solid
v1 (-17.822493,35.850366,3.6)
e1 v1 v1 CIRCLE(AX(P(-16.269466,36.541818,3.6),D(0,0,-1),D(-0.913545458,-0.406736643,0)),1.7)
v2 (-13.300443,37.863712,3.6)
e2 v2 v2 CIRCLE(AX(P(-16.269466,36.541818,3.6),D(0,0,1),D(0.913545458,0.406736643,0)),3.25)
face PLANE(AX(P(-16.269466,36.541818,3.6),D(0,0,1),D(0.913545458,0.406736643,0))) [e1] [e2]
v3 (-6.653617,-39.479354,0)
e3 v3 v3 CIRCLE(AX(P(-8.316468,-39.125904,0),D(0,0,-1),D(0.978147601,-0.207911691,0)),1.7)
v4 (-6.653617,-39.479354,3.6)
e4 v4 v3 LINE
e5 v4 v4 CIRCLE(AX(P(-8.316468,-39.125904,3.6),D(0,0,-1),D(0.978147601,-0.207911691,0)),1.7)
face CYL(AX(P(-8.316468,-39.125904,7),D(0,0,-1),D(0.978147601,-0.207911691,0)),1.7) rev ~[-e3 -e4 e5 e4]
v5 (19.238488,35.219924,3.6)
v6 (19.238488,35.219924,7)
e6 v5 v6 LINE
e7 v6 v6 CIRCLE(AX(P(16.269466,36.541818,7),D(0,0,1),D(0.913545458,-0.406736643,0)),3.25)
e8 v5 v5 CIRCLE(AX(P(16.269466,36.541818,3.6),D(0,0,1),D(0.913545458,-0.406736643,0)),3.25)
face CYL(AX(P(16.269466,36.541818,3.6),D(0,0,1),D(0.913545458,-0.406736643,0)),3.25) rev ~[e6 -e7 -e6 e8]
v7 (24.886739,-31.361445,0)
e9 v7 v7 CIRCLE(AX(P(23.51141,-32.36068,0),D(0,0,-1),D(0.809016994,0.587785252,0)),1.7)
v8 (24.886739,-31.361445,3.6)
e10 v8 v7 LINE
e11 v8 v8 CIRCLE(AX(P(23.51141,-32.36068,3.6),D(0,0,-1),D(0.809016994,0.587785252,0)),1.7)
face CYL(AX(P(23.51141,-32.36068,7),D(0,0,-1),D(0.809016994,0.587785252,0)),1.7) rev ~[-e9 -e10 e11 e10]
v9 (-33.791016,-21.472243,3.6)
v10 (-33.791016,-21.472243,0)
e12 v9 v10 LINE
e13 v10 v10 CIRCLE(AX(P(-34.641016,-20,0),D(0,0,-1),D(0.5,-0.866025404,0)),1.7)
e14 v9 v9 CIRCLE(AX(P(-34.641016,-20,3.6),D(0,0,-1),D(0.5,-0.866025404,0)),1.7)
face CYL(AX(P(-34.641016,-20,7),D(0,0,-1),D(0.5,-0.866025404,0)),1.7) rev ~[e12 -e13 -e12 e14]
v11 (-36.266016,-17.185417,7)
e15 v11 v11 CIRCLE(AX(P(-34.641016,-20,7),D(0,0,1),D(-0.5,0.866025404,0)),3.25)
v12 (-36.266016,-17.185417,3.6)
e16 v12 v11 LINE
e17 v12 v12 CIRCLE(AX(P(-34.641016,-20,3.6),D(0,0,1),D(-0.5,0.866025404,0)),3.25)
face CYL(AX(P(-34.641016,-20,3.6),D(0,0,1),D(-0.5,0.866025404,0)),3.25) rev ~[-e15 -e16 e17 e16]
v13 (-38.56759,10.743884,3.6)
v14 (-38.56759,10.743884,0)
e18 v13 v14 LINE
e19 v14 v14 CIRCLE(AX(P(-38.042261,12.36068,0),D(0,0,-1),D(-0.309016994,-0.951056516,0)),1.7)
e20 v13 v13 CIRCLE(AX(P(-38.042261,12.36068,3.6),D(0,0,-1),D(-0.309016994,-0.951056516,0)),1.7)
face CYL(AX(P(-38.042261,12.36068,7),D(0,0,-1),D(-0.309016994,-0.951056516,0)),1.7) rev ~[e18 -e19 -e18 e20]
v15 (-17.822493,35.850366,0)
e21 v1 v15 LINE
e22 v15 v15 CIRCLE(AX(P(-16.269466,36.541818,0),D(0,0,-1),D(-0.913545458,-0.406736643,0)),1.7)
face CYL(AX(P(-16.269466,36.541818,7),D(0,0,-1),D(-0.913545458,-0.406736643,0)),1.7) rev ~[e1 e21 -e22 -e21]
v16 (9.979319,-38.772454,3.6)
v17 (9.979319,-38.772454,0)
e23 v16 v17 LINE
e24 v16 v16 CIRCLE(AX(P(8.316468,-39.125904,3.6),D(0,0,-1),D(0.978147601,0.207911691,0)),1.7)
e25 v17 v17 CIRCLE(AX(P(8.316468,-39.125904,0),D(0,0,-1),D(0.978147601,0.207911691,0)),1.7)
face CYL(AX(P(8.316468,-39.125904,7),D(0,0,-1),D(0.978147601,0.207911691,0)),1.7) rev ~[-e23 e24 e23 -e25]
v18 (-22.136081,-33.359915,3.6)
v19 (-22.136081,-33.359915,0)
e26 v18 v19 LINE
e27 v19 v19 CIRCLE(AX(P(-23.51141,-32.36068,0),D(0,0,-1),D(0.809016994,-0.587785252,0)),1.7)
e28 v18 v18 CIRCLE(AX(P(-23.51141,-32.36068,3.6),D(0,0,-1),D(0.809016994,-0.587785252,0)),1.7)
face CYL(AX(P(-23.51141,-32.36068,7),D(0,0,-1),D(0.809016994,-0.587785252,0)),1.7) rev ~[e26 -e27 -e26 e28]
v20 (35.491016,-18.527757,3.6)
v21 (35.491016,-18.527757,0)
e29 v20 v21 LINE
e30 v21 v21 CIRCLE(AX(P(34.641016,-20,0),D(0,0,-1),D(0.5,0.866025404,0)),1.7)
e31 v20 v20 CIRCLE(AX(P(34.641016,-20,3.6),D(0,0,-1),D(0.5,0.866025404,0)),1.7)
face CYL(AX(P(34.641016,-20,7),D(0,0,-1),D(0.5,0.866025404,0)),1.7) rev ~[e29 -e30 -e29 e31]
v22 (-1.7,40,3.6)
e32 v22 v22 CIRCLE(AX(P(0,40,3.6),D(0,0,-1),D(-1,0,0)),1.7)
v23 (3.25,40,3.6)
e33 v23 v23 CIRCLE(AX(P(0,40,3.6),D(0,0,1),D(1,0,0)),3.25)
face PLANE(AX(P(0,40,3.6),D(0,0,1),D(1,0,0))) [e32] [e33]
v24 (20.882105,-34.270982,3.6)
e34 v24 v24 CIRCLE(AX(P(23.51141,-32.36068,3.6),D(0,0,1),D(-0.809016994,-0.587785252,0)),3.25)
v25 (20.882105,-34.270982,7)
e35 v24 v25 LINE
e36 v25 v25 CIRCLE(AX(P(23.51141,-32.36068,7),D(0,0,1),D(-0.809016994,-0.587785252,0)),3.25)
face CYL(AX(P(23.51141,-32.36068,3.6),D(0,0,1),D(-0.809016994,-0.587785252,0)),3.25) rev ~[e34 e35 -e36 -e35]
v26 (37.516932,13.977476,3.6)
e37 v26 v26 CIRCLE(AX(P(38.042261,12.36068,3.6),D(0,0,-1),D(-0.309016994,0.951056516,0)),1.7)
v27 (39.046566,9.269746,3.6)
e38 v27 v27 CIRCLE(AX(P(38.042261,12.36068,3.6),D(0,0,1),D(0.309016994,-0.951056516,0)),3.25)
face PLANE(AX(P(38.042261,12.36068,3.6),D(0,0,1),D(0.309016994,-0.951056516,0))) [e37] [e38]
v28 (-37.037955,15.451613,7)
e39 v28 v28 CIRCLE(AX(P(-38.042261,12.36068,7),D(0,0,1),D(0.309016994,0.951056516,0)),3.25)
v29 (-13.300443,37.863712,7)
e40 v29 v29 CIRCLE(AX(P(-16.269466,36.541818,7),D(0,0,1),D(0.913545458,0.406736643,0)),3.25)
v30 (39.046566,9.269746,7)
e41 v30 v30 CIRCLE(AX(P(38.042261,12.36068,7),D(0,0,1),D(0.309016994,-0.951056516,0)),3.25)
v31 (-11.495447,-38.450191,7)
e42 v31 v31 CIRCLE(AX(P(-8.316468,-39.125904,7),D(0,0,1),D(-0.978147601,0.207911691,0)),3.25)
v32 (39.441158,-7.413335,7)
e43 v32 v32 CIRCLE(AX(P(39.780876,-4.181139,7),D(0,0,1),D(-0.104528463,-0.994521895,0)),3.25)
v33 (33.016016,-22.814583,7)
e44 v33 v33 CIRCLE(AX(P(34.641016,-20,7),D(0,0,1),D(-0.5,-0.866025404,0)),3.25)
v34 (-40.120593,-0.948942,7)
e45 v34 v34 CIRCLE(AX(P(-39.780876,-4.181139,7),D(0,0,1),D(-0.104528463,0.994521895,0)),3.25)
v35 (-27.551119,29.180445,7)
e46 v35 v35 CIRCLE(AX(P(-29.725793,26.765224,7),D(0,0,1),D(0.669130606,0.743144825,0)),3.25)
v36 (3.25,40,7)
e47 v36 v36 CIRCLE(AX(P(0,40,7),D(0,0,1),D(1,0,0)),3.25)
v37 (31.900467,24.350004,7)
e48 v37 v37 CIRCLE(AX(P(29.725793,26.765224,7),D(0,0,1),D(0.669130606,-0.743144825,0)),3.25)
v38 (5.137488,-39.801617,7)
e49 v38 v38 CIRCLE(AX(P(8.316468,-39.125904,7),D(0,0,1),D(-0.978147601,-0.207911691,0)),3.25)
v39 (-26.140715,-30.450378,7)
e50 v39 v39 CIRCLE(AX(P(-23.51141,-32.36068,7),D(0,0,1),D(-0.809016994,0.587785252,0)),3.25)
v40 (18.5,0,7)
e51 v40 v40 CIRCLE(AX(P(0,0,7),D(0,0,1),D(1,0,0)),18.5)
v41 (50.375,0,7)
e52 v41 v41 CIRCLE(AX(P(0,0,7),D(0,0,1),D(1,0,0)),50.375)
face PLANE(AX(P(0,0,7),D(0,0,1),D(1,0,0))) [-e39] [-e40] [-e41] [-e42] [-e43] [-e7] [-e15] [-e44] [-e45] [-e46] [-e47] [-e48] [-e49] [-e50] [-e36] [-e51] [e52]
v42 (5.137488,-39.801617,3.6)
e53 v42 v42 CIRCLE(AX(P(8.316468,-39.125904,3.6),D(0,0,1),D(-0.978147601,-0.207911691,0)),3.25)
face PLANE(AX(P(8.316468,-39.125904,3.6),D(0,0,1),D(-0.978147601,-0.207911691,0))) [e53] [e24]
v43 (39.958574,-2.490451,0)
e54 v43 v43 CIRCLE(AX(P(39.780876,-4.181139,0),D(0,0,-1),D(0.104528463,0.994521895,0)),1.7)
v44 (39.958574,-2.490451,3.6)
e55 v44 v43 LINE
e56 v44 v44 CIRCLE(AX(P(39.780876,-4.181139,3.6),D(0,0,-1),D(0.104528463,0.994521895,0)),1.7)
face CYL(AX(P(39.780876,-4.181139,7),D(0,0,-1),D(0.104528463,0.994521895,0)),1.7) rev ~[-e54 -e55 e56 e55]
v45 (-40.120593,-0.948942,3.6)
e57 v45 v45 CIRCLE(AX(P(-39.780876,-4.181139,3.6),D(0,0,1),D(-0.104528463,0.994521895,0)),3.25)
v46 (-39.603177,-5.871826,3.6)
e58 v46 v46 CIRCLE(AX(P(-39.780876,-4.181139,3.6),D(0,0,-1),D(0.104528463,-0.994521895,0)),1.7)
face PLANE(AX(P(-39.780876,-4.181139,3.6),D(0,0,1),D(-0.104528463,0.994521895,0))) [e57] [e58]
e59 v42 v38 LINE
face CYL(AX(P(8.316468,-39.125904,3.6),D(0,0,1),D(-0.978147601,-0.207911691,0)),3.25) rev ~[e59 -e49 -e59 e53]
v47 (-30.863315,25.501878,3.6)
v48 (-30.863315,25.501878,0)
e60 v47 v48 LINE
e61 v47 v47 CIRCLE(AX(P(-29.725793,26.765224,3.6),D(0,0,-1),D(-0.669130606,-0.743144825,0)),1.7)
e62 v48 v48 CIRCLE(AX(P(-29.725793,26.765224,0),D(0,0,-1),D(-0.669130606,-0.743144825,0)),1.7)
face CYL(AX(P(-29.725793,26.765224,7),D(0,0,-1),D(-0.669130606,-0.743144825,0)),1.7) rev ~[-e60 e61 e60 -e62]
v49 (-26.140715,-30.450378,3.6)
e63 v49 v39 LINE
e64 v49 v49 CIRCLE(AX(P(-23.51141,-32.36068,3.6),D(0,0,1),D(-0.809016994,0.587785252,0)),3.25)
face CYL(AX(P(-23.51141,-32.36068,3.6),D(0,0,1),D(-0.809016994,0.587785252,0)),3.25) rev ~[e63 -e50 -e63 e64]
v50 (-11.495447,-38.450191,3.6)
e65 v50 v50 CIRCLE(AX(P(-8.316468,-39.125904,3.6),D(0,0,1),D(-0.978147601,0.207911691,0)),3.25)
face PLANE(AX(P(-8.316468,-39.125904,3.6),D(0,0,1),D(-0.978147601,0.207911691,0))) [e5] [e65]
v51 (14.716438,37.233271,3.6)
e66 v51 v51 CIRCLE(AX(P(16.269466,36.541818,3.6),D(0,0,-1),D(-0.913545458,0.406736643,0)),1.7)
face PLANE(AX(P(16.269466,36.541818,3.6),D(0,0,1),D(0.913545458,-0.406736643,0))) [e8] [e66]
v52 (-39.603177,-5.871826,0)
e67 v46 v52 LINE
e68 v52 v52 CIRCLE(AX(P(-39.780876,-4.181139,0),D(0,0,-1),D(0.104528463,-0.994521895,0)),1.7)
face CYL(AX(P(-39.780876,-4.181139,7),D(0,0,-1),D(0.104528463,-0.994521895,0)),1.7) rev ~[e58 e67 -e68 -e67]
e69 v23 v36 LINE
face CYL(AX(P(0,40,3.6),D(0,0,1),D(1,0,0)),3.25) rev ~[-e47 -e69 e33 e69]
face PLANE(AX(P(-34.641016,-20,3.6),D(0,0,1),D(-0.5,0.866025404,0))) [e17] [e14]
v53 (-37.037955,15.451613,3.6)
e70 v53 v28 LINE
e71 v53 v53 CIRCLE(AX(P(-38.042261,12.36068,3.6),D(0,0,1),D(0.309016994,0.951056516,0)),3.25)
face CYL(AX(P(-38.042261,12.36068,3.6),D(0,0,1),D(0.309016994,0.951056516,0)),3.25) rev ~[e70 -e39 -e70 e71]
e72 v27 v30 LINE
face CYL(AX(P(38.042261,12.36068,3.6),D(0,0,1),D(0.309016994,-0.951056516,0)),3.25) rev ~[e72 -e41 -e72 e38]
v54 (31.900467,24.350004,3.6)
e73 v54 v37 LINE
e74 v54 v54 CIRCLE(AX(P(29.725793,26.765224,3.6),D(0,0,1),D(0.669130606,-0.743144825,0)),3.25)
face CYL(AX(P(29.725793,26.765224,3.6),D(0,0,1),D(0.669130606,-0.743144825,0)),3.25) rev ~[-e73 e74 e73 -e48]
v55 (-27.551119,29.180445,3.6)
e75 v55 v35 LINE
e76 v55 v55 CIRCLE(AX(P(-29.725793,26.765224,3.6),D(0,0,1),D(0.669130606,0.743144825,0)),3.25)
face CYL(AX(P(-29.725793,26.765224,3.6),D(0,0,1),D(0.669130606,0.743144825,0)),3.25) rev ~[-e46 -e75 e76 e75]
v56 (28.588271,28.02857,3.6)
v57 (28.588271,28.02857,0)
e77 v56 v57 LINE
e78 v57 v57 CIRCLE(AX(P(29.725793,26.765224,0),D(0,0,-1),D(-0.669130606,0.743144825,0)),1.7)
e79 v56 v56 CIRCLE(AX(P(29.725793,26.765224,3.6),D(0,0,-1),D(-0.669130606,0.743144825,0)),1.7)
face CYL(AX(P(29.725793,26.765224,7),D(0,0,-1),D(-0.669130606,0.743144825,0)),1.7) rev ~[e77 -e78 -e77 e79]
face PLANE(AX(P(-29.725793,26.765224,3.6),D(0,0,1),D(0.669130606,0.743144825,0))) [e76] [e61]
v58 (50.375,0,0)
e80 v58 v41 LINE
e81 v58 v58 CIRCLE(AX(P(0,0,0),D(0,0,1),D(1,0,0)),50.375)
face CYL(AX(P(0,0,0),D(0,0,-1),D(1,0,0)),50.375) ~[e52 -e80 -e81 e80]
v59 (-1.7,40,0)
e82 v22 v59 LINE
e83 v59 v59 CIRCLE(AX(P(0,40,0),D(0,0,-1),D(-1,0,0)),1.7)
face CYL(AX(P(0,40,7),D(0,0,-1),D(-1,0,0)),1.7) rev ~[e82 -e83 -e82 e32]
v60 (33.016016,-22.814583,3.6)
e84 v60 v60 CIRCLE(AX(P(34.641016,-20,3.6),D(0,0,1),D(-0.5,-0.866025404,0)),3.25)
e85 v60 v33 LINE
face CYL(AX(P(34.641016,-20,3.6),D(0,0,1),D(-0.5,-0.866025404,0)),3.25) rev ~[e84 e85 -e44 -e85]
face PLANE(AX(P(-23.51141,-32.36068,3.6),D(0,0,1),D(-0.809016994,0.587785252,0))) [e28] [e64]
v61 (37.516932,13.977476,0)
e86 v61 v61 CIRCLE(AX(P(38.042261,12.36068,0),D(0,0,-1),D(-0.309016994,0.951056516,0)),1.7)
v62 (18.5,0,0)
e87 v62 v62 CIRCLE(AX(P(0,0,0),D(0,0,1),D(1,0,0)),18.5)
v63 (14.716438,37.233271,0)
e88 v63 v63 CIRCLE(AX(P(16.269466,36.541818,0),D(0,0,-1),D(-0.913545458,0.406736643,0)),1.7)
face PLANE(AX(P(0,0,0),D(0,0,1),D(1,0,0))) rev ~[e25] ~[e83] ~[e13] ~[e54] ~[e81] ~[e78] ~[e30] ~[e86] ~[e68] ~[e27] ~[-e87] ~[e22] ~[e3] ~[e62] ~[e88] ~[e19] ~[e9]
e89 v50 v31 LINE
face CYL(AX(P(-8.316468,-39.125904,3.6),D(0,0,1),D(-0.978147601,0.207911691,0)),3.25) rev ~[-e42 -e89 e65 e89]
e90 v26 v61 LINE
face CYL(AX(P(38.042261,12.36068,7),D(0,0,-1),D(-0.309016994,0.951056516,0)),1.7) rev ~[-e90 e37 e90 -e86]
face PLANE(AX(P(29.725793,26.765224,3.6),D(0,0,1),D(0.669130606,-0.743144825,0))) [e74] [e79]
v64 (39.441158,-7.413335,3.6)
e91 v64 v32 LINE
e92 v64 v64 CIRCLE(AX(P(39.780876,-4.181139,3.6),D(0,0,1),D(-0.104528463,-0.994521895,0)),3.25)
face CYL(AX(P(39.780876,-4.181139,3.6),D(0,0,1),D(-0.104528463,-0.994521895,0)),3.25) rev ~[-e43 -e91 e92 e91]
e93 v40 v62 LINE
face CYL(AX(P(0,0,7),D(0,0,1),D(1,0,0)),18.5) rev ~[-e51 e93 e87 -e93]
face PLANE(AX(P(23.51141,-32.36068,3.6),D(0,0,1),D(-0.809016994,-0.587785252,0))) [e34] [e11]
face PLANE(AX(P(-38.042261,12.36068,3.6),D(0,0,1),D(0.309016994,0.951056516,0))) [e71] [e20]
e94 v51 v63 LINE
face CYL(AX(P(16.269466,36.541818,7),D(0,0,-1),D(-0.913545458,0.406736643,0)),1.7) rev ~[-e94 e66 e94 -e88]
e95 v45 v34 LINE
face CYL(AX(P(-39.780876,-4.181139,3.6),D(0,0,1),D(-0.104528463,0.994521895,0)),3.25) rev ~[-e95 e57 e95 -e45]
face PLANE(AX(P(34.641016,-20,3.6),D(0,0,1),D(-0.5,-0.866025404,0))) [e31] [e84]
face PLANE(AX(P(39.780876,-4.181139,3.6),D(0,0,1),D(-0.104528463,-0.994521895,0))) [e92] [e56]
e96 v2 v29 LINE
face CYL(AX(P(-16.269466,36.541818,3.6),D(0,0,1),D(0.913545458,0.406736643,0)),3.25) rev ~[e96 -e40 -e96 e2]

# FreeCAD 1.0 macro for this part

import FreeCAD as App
import Part
import Sketcher
from FreeCAD import Vector
Q = App.Units.Quantity

doc = App.newDocument("Part")
body = doc.addObject("PartDesign::Body", "Body")

sketch1 = body.newObject("Sketcher::SketchObject", "Sketch")
sketch1.AttachmentSupport = (doc.getObject("XY_Plane"), [""])
sketch1.MapMode = "FlatFace"
sketch1.addGeometry(Part.Circle(Vector(0, 0, 0), Vector(0, 0, 1), 50), False)
sketch1.addConstraint(Sketcher.Constraint("Coincident", 0, 3, -1, 1))
sketch1.addConstraint(Sketcher.Constraint("Diameter", 0, Q("100.75 mm")))
pad1 = body.newObject("PartDesign::Pad", "Pad")
pad1.Profile = sketch1
pad1.Length = 7

sketch2 = body.newObject("Sketcher::SketchObject", "Sketch001")
sketch2.AttachmentSupport = (doc.getObject("XY_Plane"), [""])
sketch2.MapMode = "FlatFace"
sketch2.AttachmentOffset = App.Placement(Vector(0, 0, 7), App.Rotation())
sketch2.addGeometry(Part.Circle(Vector(0, 0, 0), Vector(0, 0, 1), 18), False)
sketch2.addConstraint(Sketcher.Constraint("Coincident", 0, 3, -1, 1))
sketch2.addConstraint(Sketcher.Constraint("Diameter", 0, Q("37 mm")))
pocket1 = body.newObject("PartDesign::Pocket", "Pocket")
pocket1.Profile = sketch2
pocket1.Type = "ThroughAll"

sketch3 = body.newObject("Sketcher::SketchObject", "Sketch002")
sketch3.AttachmentSupport = (doc.getObject("XY_Plane"), [""])
sketch3.MapMode = "FlatFace"
sketch3.AttachmentOffset = App.Placement(Vector(0, 0, 7), App.Rotation())
sketch3.addGeometry(Part.Circle(Vector(0, 40, 0), Vector(0, 0, 1), 1.7), False)
sketch3.addConstraint(Sketcher.Constraint("PointOnObject", 0, 3, -2))
sketch3.addConstraint(Sketcher.Constraint("Diameter", 0, Q("3.4 mm")))
sketch3.addConstraint(Sketcher.Constraint("DistanceY", -1, 1, 0, 3, Q("40 mm")))
doc.recompute()
hole = body.newObject("PartDesign::Hole", "Hole")
hole.Profile = sketch3
hole.ThreadType = "None"
hole.Diameter = 3.4
hole.DepthType = "ThroughAll"
hole.HoleCutType = "Counterbore"
hole.HoleCutDiameter = 6.5
hole.HoleCutDepth = 3.4
doc.recompute()

polarpattern = body.newObject("PartDesign::PolarPattern", "PolarPattern")
polarpattern.Originals = [hole]
polarpattern.Axis = (doc.getObject("Z_Axis"), [""])
polarpattern.Angle = 360
polarpattern.Occurrences = 15
body.Tip = polarpattern

doc.recompute()
